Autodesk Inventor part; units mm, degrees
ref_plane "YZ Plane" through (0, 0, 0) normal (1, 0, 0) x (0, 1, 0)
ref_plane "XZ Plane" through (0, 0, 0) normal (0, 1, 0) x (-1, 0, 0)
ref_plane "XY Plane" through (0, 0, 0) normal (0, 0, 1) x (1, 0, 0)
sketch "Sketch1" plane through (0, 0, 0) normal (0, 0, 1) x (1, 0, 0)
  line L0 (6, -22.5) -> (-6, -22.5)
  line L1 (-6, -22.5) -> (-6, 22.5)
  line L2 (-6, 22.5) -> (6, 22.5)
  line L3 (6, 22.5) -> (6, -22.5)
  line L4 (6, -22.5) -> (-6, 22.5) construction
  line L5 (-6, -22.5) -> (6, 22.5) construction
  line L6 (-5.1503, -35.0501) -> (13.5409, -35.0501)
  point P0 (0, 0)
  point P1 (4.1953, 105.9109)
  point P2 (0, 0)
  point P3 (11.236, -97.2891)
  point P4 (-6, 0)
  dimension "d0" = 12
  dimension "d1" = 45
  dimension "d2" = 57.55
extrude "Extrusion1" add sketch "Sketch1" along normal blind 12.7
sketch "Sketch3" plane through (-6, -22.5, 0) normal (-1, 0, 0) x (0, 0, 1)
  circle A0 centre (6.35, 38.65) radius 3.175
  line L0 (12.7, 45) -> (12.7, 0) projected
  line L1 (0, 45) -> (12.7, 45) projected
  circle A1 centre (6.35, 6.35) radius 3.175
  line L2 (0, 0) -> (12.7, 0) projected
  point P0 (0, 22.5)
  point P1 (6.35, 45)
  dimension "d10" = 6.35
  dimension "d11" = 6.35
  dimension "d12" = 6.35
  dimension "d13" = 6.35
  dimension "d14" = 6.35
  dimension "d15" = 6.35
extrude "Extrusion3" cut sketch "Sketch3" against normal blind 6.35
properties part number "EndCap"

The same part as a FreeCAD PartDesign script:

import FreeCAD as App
import Part
import Sketcher

V = App.Vector

doc = App.newDocument("Part")
body = doc.addObject("PartDesign::Body", "Body")

sketch1 = body.newObject("Sketcher::SketchObject", "Sketch")
sketch1.AttachmentSupport = (doc.getObject("XY_Plane"), [""])
sketch1.MapMode = "FlatFace"
sketch1.addGeometry([
    Part.LineSegment(V(-6, -22, 0), V(6, -22, 0)),
    Part.LineSegment(V(6, -22, 0), V(6, 22, 0)),
    Part.LineSegment(V(6, 22, 0), V(-6, 22, 0)),
    Part.LineSegment(V(-6, 22, 0), V(-6, -22, 0)),
], False)
sketch1.addConstraint([
    Sketcher.Constraint("Coincident", 0, 2, 1, 1),
    Sketcher.Constraint("Coincident", 1, 2, 2, 1),
    Sketcher.Constraint("Coincident", 2, 2, 3, 1),
    Sketcher.Constraint("Coincident", 3, 2, 0, 1),
    Sketcher.Constraint("Horizontal", 0),
    Sketcher.Constraint("Vertical", 1),
    Sketcher.Constraint("Horizontal", 2),
    Sketcher.Constraint("Vertical", 3),
    Sketcher.Constraint("Symmetric", 0, 2, 2, 2, -1, 1),
    Sketcher.Constraint("DistanceX", 0, 1, 0, 2, 12.0),
    Sketcher.Constraint("DistanceY", 1, 1, 1, 2, 45.0),
])
pad1 = body.newObject("PartDesign::Pad", "Pad")
pad1.Profile = sketch1
pad1.Length = 12.7

sketch2 = body.newObject("Sketcher::SketchObject", "Sketch001")
sketch2.AttachmentSupport = (doc.getObject("YZ_Plane"), [""])
sketch2.MapMode = "FlatFace"
sketch2.AttachmentOffset = App.Placement(V(0, 0, -6), App.Rotation())
sketch2.addGeometry([
    Part.Circle(V(16.1, 6.3, 0), V(0, 0, 1), 3.2),
    Part.Circle(V(-16.1, 6.3, 0), V(0, 0, 1), 3.2),
], False)
sketch2.addConstraint([
    Sketcher.Constraint("Equal", 0, 1),
    Sketcher.Constraint("Symmetric", 0, 3, 1, 3, -2),
    Sketcher.Constraint("Diameter", 0, 6.35),
    Sketcher.Constraint("DistanceY", -1, 1, 0, 3, 6.35),
    Sketcher.Constraint("DistanceX", 1, 3, 0, 3, 32.3),
])
pocket1 = body.newObject("PartDesign::Pocket", "Pocket")
pocket1.Profile = sketch2
pocket1.Length = 6.35
pocket1.Reversed = True

doc.recompute()
